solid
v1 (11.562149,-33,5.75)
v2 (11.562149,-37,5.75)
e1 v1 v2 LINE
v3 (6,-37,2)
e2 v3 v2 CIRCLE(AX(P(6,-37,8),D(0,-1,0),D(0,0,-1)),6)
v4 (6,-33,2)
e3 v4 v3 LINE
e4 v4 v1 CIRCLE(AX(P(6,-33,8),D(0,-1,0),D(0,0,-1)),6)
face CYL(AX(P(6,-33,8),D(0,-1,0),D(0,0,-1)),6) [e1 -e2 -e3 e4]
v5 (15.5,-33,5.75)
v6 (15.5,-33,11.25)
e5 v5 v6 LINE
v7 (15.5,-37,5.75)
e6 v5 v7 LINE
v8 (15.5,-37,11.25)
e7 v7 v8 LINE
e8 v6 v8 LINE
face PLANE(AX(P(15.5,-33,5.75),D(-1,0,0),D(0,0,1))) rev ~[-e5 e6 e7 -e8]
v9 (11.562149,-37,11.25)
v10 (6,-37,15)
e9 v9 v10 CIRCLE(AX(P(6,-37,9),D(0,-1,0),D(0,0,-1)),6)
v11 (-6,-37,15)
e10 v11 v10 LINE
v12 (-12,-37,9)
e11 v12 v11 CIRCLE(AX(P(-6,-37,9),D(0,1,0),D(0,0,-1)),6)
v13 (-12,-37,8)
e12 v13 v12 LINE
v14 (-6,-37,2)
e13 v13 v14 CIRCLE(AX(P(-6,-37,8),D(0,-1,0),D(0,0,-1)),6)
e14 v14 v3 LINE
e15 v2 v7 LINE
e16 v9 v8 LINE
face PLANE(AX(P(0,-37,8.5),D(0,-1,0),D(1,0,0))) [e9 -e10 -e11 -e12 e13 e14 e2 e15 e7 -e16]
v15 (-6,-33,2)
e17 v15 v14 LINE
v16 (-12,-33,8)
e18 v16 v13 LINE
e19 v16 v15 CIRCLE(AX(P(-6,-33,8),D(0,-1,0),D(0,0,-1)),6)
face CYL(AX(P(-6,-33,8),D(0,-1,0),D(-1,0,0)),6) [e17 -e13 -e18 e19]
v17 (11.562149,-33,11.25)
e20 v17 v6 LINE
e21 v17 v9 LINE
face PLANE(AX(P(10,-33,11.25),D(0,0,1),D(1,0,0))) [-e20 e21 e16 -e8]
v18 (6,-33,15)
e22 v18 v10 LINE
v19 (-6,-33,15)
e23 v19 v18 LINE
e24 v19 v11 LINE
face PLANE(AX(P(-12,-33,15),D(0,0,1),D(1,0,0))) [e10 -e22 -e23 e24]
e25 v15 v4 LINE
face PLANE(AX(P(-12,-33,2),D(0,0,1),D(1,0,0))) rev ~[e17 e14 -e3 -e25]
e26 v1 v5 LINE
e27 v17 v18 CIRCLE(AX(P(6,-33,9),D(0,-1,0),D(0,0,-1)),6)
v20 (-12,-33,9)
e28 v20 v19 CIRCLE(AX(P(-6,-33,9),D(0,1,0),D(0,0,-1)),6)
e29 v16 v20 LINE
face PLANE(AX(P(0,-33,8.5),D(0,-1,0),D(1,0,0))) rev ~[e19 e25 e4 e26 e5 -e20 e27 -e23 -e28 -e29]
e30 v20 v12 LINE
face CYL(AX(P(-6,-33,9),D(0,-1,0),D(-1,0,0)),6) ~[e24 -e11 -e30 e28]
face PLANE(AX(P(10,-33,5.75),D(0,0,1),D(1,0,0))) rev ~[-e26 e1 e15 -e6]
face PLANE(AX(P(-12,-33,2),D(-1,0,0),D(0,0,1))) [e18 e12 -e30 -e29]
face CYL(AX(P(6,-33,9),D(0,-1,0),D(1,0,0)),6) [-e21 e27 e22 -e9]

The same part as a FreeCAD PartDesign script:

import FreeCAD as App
import Part
import Sketcher
from FreeCAD import Vector


def edges_at(feature, points):
    """Names of the edges that pass closest to the given points."""
    edges = feature.Shape.Edges
    near = lambda p: min(range(len(edges)), key=lambda i: edges[i].distToShape(Part.Vertex(*p))[0])
    return sorted({f"Edge{near(p) + 1}" for p in points})


def add_polygon(sketch, points):
    """Adds a closed chain of lines whose ends are joined by coincident constraints."""
    first, n = sketch.GeometryCount, len(points)
    for a, b in zip(points, points[1:] + points[:1]):
        sketch.addGeometry(Part.LineSegment(App.Vector(*a, 0), App.Vector(*b, 0)), False)
    for i in range(n):
        sketch.addConstraint(Sketcher.Constraint("Coincident", first + i, 2, first + (i + 1) % n, 1))

doc = App.newDocument("Part")
body = doc.addObject("PartDesign::Body", "Body")

# Sketch on XZ plane
sketch1 = doc.addObject("Sketcher::SketchObject", "Sketch")
body.addObject(sketch1)
sketch1.AttachmentSupport = (doc.XZ_Plane, [""])
sketch1.MapMode = "FlatFace"
sketch1.AttachmentOffset = App.Placement(Vector(0, 0, 33), App.Rotation())
add_polygon(sketch1, [(-12, 15), (-12, 2), (12, 2), (12, 15)])  # lines 0-3
sketch1.addConstraint([
    Sketcher.Constraint("Vertical", 0),
    Sketcher.Constraint("Horizontal", 1),
    Sketcher.Constraint("Vertical", 2),
    Sketcher.Constraint("Horizontal", 3),
    Sketcher.Constraint("DistanceX", 1, 1, 1, 2, 24.0),
    Sketcher.Constraint("DistanceY", 0, 2, 0, 1, 13.0),
    Sketcher.Constraint("DistanceX", 0, 2, -1, 1, 12.0),
    Sketcher.Constraint("DistanceY", -1, 1, 0, 2, 2.0),
])
pad1 = doc.addObject("PartDesign::Pad", "Pad")
body.addObject(pad1)
pad1.Profile = sketch1
pad1.Length = 4
doc.recompute()

fillet = doc.addObject("PartDesign::Fillet", "Fillet")
body.addObject(fillet)
fillet.Base = (pad1, edges_at(pad1, [
    (-12, -35, 15),
    (12, -35, 15),
    (-12, -35, 2),
    (12, -35, 2),
]))
fillet.Radius = 6

# Sketch on XZ plane
sketch2 = doc.addObject("Sketcher::SketchObject", "Sketch001")
body.addObject(sketch2)
sketch2.AttachmentSupport = (doc.XZ_Plane, [""])
sketch2.MapMode = "FlatFace"
sketch2.AttachmentOffset = App.Placement(Vector(0, 0, 33), App.Rotation())
add_polygon(sketch2, [(10, 11), (10, 6), (16, 6), (16, 11)])  # lines 0-3
sketch2.addConstraint([
    Sketcher.Constraint("Vertical", 0),
    Sketcher.Constraint("Horizontal", 1),
    Sketcher.Constraint("Vertical", 2),
    Sketcher.Constraint("Horizontal", 3),
    Sketcher.Constraint("Equal", 3, 0),
    Sketcher.Constraint("DistanceX", 1, 1, 1, 2, 5.5),
    Sketcher.Constraint("DistanceX", -1, 1, 0, 2, 10.0),
    Sketcher.Constraint("DistanceY", -1, 1, 0, 2, 5.75),
])
pad2 = doc.addObject("PartDesign::Pad", "Pad001")
body.addObject(pad2)
pad2.Profile = sketch2
pad2.Length = 4

doc.recompute()
